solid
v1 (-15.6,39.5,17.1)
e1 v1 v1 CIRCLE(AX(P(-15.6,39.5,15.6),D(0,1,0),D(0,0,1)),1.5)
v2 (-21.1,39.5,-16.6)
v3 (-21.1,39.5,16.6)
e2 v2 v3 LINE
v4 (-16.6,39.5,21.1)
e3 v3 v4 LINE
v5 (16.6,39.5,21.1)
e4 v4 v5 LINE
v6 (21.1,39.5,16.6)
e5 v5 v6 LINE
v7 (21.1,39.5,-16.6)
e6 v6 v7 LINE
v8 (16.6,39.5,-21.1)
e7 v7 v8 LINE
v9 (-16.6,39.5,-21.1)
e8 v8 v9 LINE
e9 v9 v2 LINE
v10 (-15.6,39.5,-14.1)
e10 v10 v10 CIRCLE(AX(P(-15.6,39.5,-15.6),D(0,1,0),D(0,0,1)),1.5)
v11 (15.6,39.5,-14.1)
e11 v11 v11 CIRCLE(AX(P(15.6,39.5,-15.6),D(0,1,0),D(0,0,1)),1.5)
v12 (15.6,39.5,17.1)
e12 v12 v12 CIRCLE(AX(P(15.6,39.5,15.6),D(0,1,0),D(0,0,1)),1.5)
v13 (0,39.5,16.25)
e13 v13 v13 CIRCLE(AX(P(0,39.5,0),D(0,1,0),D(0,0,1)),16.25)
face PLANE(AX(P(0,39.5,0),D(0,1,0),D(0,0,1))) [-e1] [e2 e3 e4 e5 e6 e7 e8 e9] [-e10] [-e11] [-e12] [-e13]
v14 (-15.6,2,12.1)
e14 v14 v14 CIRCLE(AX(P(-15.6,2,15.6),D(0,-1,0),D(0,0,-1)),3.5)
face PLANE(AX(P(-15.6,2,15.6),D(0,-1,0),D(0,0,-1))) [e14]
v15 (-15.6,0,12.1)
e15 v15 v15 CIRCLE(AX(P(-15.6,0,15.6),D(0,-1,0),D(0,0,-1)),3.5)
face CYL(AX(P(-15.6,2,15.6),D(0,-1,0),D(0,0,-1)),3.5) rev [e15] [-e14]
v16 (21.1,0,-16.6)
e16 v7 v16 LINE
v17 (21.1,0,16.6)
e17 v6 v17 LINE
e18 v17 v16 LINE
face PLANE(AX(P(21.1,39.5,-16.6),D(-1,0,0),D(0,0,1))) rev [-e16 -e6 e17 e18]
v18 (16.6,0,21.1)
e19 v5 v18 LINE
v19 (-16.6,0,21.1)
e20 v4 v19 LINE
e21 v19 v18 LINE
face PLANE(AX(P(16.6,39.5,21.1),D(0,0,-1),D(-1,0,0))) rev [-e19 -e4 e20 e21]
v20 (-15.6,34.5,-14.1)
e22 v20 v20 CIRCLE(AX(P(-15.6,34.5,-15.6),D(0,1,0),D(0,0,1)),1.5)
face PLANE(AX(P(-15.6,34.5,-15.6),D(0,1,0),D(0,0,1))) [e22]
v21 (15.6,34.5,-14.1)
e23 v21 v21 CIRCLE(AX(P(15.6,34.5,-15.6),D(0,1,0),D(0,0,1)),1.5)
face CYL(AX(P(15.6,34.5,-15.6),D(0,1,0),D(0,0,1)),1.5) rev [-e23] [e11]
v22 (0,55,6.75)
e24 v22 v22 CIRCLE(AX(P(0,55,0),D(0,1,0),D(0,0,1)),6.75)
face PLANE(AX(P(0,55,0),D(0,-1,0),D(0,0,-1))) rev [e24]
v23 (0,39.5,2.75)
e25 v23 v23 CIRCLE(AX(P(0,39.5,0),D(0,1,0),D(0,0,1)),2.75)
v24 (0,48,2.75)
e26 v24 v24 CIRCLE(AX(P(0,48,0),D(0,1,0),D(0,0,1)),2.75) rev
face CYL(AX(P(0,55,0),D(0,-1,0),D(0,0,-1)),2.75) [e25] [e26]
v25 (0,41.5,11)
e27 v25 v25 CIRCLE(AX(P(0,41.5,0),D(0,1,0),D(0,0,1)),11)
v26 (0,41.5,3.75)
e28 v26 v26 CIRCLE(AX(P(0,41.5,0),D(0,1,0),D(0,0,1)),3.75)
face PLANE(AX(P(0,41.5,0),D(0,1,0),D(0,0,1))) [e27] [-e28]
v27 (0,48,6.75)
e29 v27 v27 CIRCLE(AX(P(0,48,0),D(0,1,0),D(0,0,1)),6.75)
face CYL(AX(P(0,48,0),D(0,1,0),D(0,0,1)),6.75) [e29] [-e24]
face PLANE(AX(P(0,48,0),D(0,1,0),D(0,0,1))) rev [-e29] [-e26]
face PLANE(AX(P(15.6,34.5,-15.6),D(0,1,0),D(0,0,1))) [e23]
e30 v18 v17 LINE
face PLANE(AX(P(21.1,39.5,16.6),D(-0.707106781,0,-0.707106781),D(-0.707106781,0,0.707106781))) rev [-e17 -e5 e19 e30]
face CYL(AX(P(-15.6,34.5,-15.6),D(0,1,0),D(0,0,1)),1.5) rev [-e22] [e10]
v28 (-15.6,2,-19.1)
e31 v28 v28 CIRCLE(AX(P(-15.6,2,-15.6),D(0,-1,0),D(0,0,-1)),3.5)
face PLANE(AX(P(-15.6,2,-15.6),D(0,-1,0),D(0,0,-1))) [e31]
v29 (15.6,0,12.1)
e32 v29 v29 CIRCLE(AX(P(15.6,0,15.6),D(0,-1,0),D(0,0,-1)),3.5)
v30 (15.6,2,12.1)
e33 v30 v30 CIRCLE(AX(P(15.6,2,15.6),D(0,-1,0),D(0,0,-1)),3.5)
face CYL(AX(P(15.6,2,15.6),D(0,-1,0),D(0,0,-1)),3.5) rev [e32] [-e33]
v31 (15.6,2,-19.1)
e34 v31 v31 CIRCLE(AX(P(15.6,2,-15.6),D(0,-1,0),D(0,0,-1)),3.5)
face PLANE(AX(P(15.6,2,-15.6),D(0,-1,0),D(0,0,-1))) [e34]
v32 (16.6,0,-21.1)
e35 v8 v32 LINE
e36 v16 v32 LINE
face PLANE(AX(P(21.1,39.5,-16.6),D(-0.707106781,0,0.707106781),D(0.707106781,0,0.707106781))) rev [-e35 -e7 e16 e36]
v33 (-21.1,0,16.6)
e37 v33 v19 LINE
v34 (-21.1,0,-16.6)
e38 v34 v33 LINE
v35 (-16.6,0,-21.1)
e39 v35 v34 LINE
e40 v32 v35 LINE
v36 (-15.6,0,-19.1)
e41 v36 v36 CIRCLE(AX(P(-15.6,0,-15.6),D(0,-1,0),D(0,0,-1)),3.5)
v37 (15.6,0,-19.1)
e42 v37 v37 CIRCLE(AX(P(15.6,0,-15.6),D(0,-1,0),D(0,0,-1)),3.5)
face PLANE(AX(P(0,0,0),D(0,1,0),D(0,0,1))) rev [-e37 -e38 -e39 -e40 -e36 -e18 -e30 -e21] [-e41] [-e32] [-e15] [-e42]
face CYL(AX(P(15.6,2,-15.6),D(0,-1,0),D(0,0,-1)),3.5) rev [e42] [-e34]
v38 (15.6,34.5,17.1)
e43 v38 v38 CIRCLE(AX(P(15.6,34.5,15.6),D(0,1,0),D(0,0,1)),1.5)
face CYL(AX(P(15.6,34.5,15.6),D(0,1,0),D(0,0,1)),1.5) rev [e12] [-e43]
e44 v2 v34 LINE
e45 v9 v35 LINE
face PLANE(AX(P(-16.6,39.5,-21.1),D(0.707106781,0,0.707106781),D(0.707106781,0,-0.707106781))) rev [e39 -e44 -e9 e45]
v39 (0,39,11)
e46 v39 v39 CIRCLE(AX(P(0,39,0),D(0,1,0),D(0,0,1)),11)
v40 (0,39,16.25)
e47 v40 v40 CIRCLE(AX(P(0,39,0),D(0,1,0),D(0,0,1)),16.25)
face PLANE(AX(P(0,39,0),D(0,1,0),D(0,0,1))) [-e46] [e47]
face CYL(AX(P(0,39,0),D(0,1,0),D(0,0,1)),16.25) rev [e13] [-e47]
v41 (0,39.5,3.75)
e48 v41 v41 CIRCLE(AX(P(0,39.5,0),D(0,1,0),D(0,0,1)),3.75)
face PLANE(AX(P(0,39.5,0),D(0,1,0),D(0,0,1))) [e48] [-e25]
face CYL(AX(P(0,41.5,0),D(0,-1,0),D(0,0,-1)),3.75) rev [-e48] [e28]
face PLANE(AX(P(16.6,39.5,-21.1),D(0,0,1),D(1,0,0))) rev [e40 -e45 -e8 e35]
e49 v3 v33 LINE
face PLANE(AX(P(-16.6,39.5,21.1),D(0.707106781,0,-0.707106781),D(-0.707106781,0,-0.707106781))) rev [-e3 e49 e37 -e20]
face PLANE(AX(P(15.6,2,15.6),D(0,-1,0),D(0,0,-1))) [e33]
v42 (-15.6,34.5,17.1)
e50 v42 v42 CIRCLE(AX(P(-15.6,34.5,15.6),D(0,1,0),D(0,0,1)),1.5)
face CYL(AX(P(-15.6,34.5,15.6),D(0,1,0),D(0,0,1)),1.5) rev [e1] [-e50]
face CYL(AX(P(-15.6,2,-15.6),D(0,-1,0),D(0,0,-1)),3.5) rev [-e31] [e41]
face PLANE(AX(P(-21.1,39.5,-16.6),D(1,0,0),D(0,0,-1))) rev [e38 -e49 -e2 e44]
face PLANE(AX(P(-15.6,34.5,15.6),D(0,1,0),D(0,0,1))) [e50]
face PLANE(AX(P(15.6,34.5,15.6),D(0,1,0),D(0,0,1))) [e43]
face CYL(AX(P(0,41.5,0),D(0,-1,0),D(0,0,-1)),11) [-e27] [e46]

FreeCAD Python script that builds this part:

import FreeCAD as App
import Part
import Sketcher
from FreeCAD import Vector
Q = App.Units.Quantity


def add_polygon(sketch, points):
    """Adds a closed chain of lines whose ends are joined by coincident constraints."""
    first, n = sketch.GeometryCount, len(points)
    for a, b in zip(points, points[1:] + points[:1]):
        sketch.addGeometry(Part.LineSegment(App.Vector(*a, 0), App.Vector(*b, 0)), False)
    for i in range(n):
        sketch.addConstraint(Sketcher.Constraint("Coincident", first + i, 2, first + (i + 1) % n, 1))

doc = App.newDocument("Part")
body = doc.addObject("PartDesign::Body", "Body")

sketch1 = body.newObject("Sketcher::SketchObject", "Sketch")
sketch1.AttachmentSupport = (doc.getObject("XZ_Plane"), [""])
sketch1.MapMode = "FlatFace"
add_polygon(sketch1, [(-17, -21), (-21, -17), (-21, 17), (-17, 21), (17, 21), (21, 17), (21, -17), (17, -21)])
sketch1.addConstraint(Sketcher.Constraint("Vertical", 1))
sketch1.addConstraint(Sketcher.Constraint("Horizontal", 3))
sketch1.addConstraint(Sketcher.Constraint("Vertical", 5))
sketch1.addConstraint(Sketcher.Constraint("Horizontal", 7))
sketch1.addConstraint(Sketcher.Constraint("Symmetric", 0, 2, 4, 2, -1, 1))
sketch1.addConstraint(Sketcher.Constraint("Symmetric", 2, 2, 6, 2, -1, 1))
sketch1.addConstraint(Sketcher.Constraint("Perpendicular", 0, 2))
sketch1.addConstraint(Sketcher.Constraint("Perpendicular", 2, 4))
sketch1.addConstraint(Sketcher.Constraint("Perpendicular", 4, 6))
sketch1.addConstraint(Sketcher.Constraint("Horizontal", 1, 2, 4, 2))
sketch1.addConstraint(Sketcher.Constraint("Vertical", 3, 2, 6, 2))
sketch1.addConstraint(Sketcher.Constraint("Equal", 7, 1))
sketch1.addConstraint(Sketcher.Constraint("DistanceX", 3, 1, 3, 2, Q("33.2 mm")))
sketch1.addConstraint(Sketcher.Constraint("DistanceX", 0, 2, -1, 1, Q("21.1 mm")))
pad1 = body.newObject("PartDesign::Pad", "Pad")
pad1.Profile = sketch1
pad1.Length = 39.5
pad1.Reversed = True

sketch2 = body.newObject("Sketcher::SketchObject", "Sketch001")
sketch2.AttachmentSupport = (doc.getObject("XZ_Plane"), [""])
sketch2.MapMode = "FlatFace"
sketch2.AttachmentOffset = App.Placement(Vector(0, 0, -39.5), App.Rotation())
sketch2.addGeometry(Part.Circle(Vector(0, 0, 0), Vector(0, 0, 1), 11), False)
sketch2.addGeometry(Part.Circle(Vector(0, 0, 0), Vector(0, 0, 1), 3.8), False)
sketch2.addConstraint(Sketcher.Constraint("Coincident", 0, 3, -1, 1))
sketch2.addConstraint(Sketcher.Constraint("Coincident", 1, 3, -1, 1))
sketch2.addConstraint(Sketcher.Constraint("Diameter", 0, Q("22 mm")))
sketch2.addConstraint(Sketcher.Constraint("Diameter", 1, Q("7.5 mm")))
pad2 = body.newObject("PartDesign::Pad", "Pad001")
pad2.Profile = sketch2
pad2.Length = 2
pad2.Reversed = True

sketch3 = body.newObject("Sketcher::SketchObject", "Sketch002")
sketch3.AttachmentSupport = (doc.getObject("XZ_Plane"), [""])
sketch3.MapMode = "FlatFace"
sketch3.AttachmentOffset = App.Placement(Vector(0, 0, -39.5), App.Rotation())
sketch3.addGeometry(Part.Circle(Vector(0, 0, 0), Vector(0, 0, 1), 16), False)
sketch3.addGeometry(Part.Circle(Vector(0, 0, 0), Vector(0, 0, 1), 11), False)
sketch3.addConstraint(Sketcher.Constraint("Coincident", 0, 3, -1, 1))
sketch3.addConstraint(Sketcher.Constraint("Coincident", 1, 3, -1, 1))
sketch3.addConstraint(Sketcher.Constraint("Diameter", 1, Q("22 mm")))
sketch3.addConstraint(Sketcher.Constraint("Diameter", 0, Q("32.5 mm")))
pocket1 = body.newObject("PartDesign::Pocket", "Pocket")
pocket1.Profile = sketch3
pocket1.Length = 0.5
pocket1.Reversed = True

sketch4 = body.newObject("Sketcher::SketchObject", "Sketch003")
sketch4.AttachmentSupport = (doc.getObject("XZ_Plane"), [""])
sketch4.MapMode = "FlatFace"
sketch4.AttachmentOffset = App.Placement(Vector(0, 0, -41.5), App.Rotation())
sketch4.addGeometry(Part.Circle(Vector(0, 0, 0), Vector(0, 0, 1), 2.8), False)
sketch4.addConstraint(Sketcher.Constraint("Coincident", 0, 3, -1, 1))
sketch4.addConstraint(Sketcher.Constraint("Diameter", 0, Q("5.5 mm")))
pocket2 = body.newObject("PartDesign::Pocket", "Pocket001")
pocket2.Profile = sketch4
pocket2.Type = "ThroughAll"
pocket2.Reversed = True

sketch5 = body.newObject("Sketcher::SketchObject", "Sketch004")
sketch5.AttachmentSupport = (doc.getObject("XZ_Plane"), [""])
sketch5.MapMode = "FlatFace"
sketch5.addGeometry(Part.Circle(Vector(-15.6, 15.6, 0), Vector(0, 0, 1), 3.5), False)
sketch5.addGeometry(Part.Circle(Vector(15.6, 15.6, 0), Vector(0, 0, 1), 3.5), False)
sketch5.addGeometry(Part.Circle(Vector(15.6, -15.6, 0), Vector(0, 0, 1), 3.5), False)
sketch5.addGeometry(Part.Circle(Vector(-15.6, -15.6, 0), Vector(0, 0, 1), 3.5), False)
sketch5.addConstraint(Sketcher.Constraint("Equal", 0, 1))
sketch5.addConstraint(Sketcher.Constraint("Equal", 1, 2))
sketch5.addConstraint(Sketcher.Constraint("Equal", 2, 3))
sketch5.addConstraint(Sketcher.Constraint("Symmetric", 0, 3, 2, 3, -1, 1))
sketch5.addConstraint(Sketcher.Constraint("Symmetric", 1, 3, 3, 3, -1, 1))
sketch5.addConstraint(Sketcher.Constraint("Symmetric", 0, 3, 1, 3, -2))
sketch5.addConstraint(Sketcher.Constraint("Diameter", 0, Q("7 mm")))
sketch5.addConstraint(Sketcher.Constraint("DistanceX", 0, 3, -1, 1, Q("15.6 mm")))
sketch5.addConstraint(Sketcher.Constraint("DistanceY", -1, 1, 0, 3, Q("15.6 mm")))
pocket3 = body.newObject("PartDesign::Pocket", "Pocket002")
pocket3.Profile = sketch5
pocket3.Length = 2

sketch6 = body.newObject("Sketcher::SketchObject", "Sketch005")
sketch6.AttachmentSupport = (doc.getObject("XZ_Plane"), [""])
sketch6.MapMode = "FlatFace"
sketch6.AttachmentOffset = App.Placement(Vector(0, 0, -39.5), App.Rotation())
sketch6.addGeometry(Part.Circle(Vector(-15.6, -15.6, 0), Vector(0, 0, 1), 1.5), False)
sketch6.addGeometry(Part.Circle(Vector(15.6, -15.6, 0), Vector(0, 0, 1), 1.5), False)
sketch6.addGeometry(Part.Circle(Vector(15.6, 15.6, 0), Vector(0, 0, 1), 1.5), False)
sketch6.addGeometry(Part.Circle(Vector(-15.6, 15.6, 0), Vector(0, 0, 1), 1.5), False)
sketch6.addConstraint(Sketcher.Constraint("Equal", 0, 1))
sketch6.addConstraint(Sketcher.Constraint("Equal", 1, 2))
sketch6.addConstraint(Sketcher.Constraint("Equal", 2, 3))
sketch6.addConstraint(Sketcher.Constraint("Symmetric", 0, 3, 2, 3, -1, 1))
sketch6.addConstraint(Sketcher.Constraint("Symmetric", 1, 3, 3, 3, -1, 1))
sketch6.addConstraint(Sketcher.Constraint("Symmetric", 0, 3, 1, 3, -2))
sketch6.addConstraint(Sketcher.Constraint("Diameter", 0, Q("3 mm")))
sketch6.addConstraint(Sketcher.Constraint("DistanceX", 0, 3, -1, 1, Q("15.6 mm")))
sketch6.addConstraint(Sketcher.Constraint("DistanceY", 0, 3, -1, 1, Q("15.6 mm")))
pocket4 = body.newObject("PartDesign::Pocket", "Pocket003")
pocket4.Profile = sketch6
pocket4.Length = 5
pocket4.Reversed = True

sketch7 = body.newObject("Sketcher::SketchObject", "Sketch006")
sketch7.AttachmentSupport = (doc.getObject("XZ_Plane"), [""])
sketch7.MapMode = "FlatFace"
sketch7.addGeometry(Part.Circle(Vector(0, 0, 0), Vector(0, 0, 1), 2.8), False)
sketch7.addConstraint(Sketcher.Constraint("Coincident", 0, 3, -1, 1))
sketch7.addConstraint(Sketcher.Constraint("Diameter", 0, Q("5.5 mm")))
pad3 = body.newObject("PartDesign::Pad", "Pad002")
pad3.Profile = sketch7
pad3.Length = 55
pad3.Reversed = True

sketch8 = body.newObject("Sketcher::SketchObject", "Sketch007")
sketch8.AttachmentSupport = (doc.getObject("XZ_Plane"), [""])
sketch8.MapMode = "FlatFace"
sketch8.AttachmentOffset = App.Placement(Vector(0, 0, -55), App.Rotation())
sketch8.addGeometry(Part.Circle(Vector(0, 0, 0), Vector(0, 0, 1), 7), False)
sketch8.addConstraint(Sketcher.Constraint("Coincident", 0, 3, -1, 1))
sketch8.addConstraint(Sketcher.Constraint("Diameter", 0, Q("13.5 mm")))
pad4 = body.newObject("PartDesign::Pad", "Pad003")
pad4.Profile = sketch8
pad4.Length = 7

doc.recompute()
